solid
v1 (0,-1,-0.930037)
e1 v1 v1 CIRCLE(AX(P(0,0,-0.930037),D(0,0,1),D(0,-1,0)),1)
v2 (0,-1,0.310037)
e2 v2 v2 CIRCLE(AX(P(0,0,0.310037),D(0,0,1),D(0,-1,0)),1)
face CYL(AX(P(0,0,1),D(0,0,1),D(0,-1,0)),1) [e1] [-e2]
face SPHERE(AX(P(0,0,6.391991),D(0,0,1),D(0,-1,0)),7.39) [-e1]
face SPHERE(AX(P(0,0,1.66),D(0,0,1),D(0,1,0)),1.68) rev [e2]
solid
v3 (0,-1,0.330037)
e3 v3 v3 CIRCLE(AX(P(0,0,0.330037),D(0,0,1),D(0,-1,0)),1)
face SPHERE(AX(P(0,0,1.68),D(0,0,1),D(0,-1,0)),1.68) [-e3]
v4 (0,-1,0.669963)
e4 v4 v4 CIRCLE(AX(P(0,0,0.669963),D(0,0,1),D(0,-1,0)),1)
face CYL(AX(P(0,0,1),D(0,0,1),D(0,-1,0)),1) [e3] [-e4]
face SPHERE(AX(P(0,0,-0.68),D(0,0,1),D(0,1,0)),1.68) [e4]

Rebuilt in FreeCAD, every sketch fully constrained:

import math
import FreeCAD as App
import Part
import Sketcher
from FreeCAD import Vector
Q = App.Units.Quantity

doc = App.newDocument("Part")
body = doc.addObject("PartDesign::Body", "Body")
body.AllowCompound = True

sketch1 = body.newObject("Sketcher::SketchObject", "Sketch")
sketch1.AttachmentSupport = (doc.getObject("YZ_Plane"), [""])
sketch1.MapMode = "FlatFace"
sketch1.addGeometry(Part.LineSegment(Vector(1, -0.930037, 0), Vector(1, 0.310037, 0)), False)
sketch1.addGeometry(Part.ArcOfCircle(Part.Circle(Vector(0, 1.66, 0), Vector(0, 0, 1), 1.68), math.radians(-90), math.radians(-53.470393)), False)
sketch1.addGeometry(Part.LineSegment(Vector(0, -0.02, 0), Vector(0, -0.998009, 0)), False)
sketch1.addGeometry(Part.ArcOfCircle(Part.Circle(Vector(0, 6.391991, 0), Vector(0, 0, 1), 7.39), math.radians(-90), math.radians(-82.222991)), False)
sketch1.addGeometry(Part.LineSegment(Vector(1, 0.330037, 0), Vector(1, 0.669963, 0)), False)
sketch1.addGeometry(Part.ArcOfCircle(Part.Circle(Vector(0, -0.68, 0), Vector(0, 0, 1), 1.68), math.radians(53.470393), math.radians(90)), False)
sketch1.addGeometry(Part.LineSegment(Vector(0, 1, 0), Vector(0, 0, 0)), False)
sketch1.addGeometry(Part.ArcOfCircle(Part.Circle(Vector(0, 1.68, 0), Vector(0, 0, 1), 1.68), math.radians(-90), math.radians(-53.470393)), False)
sketch1.addConstraint(Sketcher.Constraint("Coincident", 0, 2, 1, 2))
sketch1.addConstraint(Sketcher.Constraint("Coincident", 1, 1, 2, 1))
sketch1.addConstraint(Sketcher.Constraint("Coincident", 2, 2, 3, 1))
sketch1.addConstraint(Sketcher.Constraint("Coincident", 3, 2, 0, 1))
sketch1.addConstraint(Sketcher.Constraint("Coincident", 4, 2, 5, 1))
sketch1.addConstraint(Sketcher.Constraint("Coincident", 5, 2, 6, 1))
sketch1.addConstraint(Sketcher.Constraint("Coincident", 6, 2, 7, 1))
sketch1.addConstraint(Sketcher.Constraint("Coincident", 7, 2, 4, 1))
sketch1.addConstraint(Sketcher.Constraint("Vertical", 0))
sketch1.addConstraint(Sketcher.Constraint("Vertical", 2))
sketch1.addConstraint(Sketcher.Constraint("Vertical", 4))
sketch1.addConstraint(Sketcher.Constraint("Vertical", 6))
sketch1.addConstraint(Sketcher.Constraint("Coincident", 6, 2, -1, 1))
sketch1.addConstraint(Sketcher.Constraint("Equal", 1, 5))
sketch1.addConstraint(Sketcher.Constraint("Equal", 5, 7))
sketch1.addConstraint(Sketcher.Constraint("PointOnObject", 1, 3, -2))
sketch1.addConstraint(Sketcher.Constraint("PointOnObject", 3, 3, -2))
sketch1.addConstraint(Sketcher.Constraint("PointOnObject", 5, 3, -2))
sketch1.addConstraint(Sketcher.Constraint("PointOnObject", 7, 3, -2))
sketch1.addConstraint(Sketcher.Constraint("PointOnObject", 1, 1, -2))
sketch1.addConstraint(Sketcher.Constraint("Vertical", 3, 2, 4, 2))
sketch1.addConstraint(Sketcher.Constraint("DistanceY", 6, 2, 6, 1, Q("1 mm")))
sketch1.addConstraint(Sketcher.Constraint("Radius", 1, Q("1.68 mm")))
sketch1.addConstraint(Sketcher.Constraint("Radius", 3, Q("7.39 mm")))
sketch1.addConstraint(Sketcher.Constraint("DistanceX", -1, 1, 0, 2, Q("1 mm")))
sketch1.addConstraint(Sketcher.Constraint("DistanceY", 1, 1, 7, 3, Q("1.7 mm")))
sketch1.addConstraint(Sketcher.Constraint("DistanceY", 3, 2, 4, 2, Q("1.6 mm")))
revolution = body.newObject("PartDesign::Revolution", "Revolution")
revolution.Profile = sketch1
revolution.ReferenceAxis = (sketch1, ["V_Axis"])
revolution.Angle = 360

doc.recompute()
